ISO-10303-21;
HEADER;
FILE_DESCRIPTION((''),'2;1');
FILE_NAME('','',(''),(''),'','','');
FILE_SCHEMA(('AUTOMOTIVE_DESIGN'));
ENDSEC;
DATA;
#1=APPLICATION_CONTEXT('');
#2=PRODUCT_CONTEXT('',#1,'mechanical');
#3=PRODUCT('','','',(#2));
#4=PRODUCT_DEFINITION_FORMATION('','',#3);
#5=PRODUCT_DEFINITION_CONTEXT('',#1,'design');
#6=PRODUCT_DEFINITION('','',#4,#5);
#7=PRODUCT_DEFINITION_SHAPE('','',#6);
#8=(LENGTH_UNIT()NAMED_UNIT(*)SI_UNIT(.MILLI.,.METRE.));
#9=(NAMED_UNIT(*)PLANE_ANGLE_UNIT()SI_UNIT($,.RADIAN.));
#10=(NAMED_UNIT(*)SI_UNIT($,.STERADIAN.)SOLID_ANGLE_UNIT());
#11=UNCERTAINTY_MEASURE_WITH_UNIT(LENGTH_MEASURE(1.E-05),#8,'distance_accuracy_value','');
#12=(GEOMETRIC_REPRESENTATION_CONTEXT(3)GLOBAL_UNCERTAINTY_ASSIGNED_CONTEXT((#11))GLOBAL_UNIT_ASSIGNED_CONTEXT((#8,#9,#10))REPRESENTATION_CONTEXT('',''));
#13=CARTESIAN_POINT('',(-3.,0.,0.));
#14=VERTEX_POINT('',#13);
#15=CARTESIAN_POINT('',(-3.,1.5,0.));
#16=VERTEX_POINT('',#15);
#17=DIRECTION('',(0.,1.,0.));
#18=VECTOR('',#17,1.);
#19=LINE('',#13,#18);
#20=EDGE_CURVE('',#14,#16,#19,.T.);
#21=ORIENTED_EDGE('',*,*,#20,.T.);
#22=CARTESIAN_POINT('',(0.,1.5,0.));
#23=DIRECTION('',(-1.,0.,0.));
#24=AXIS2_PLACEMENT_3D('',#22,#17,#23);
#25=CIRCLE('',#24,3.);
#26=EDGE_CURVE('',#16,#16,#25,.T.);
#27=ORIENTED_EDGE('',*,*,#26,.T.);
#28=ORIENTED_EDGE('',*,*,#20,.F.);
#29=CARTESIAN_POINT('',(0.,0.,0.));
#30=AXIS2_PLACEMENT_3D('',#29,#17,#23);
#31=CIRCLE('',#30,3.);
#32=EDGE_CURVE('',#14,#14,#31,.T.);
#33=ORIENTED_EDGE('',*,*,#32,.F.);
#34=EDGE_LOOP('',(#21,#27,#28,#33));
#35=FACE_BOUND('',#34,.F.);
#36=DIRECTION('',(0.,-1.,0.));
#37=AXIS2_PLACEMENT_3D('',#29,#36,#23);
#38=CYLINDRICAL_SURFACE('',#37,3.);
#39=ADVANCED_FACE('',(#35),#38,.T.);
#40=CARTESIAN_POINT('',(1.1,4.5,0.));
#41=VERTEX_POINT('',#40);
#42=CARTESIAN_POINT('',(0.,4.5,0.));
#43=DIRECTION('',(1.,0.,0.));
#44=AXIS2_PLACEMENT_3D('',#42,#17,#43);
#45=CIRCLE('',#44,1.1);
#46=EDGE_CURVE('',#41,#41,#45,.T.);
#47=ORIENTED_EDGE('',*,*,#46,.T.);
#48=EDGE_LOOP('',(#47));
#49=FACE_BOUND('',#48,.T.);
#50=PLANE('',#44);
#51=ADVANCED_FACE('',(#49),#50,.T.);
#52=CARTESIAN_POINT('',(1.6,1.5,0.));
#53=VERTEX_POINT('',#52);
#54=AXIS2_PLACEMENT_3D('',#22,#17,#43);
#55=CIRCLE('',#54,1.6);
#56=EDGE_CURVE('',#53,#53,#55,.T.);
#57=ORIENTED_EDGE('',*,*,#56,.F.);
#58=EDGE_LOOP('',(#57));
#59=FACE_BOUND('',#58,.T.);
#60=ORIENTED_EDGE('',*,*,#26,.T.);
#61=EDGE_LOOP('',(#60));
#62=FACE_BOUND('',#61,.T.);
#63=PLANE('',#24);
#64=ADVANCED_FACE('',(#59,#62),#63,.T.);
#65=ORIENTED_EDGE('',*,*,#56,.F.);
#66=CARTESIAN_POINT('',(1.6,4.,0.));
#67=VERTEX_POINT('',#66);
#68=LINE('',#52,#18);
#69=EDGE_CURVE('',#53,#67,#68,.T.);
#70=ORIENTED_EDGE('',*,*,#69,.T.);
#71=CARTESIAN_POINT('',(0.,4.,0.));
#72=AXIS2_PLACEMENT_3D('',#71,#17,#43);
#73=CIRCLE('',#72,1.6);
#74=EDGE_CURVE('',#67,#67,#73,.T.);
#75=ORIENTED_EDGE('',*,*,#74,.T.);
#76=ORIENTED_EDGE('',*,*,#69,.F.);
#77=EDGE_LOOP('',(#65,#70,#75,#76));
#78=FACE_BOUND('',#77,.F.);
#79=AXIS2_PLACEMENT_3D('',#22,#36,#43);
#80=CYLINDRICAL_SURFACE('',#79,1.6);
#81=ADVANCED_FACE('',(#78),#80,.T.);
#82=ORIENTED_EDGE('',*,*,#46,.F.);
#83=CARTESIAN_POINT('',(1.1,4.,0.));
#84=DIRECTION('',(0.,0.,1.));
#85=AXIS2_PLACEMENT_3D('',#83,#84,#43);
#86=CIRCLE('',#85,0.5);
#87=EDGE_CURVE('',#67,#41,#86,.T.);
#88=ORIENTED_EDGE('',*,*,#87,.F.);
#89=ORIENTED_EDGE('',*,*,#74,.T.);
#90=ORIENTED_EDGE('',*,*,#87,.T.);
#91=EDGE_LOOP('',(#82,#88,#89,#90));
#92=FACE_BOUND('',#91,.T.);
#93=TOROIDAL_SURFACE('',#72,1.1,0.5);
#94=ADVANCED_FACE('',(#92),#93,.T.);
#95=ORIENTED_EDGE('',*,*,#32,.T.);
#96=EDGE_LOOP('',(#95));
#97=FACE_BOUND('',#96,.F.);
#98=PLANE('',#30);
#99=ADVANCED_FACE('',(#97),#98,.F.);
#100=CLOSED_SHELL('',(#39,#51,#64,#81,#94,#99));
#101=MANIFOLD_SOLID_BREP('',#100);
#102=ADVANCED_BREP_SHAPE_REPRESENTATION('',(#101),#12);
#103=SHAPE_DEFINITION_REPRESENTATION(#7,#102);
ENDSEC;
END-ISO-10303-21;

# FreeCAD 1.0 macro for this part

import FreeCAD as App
import Part
import Sketcher

V = App.Vector


def edges_at(feature, points):
    """Names of the edges that pass closest to the given points."""
    edges = feature.Shape.Edges
    near = lambda p: min(range(len(edges)), key=lambda i: edges[i].distToShape(Part.Vertex(*p))[0])
    return sorted({f"Edge{near(p) + 1}" for p in points})

doc = App.newDocument("Part")
params = doc.addObject("Spreadsheet::Sheet", "Params")
for row, (alias, value) in enumerate([
    ("sketch1_diameter", "6 mm"),
    ("pad1_length", "1.5 mm"),
    ("sketch2_diameter", "3.2 mm"),
    ("pad2_length", "3 mm"),
    ("fillet_radius", "0.5 mm"),
], start=1):
    params.set(f"A{row}", alias)
    params.set(f"B{row}", "=" + value)
    params.setAlias(f"B{row}", alias)

body = doc.addObject("PartDesign::Body", "Body")

sketch1 = body.newObject("Sketcher::SketchObject", "Sketch")
sketch1.AttachmentSupport = (doc.getObject("XZ_Plane"), [""])
sketch1.MapMode = "FlatFace"
sketch1.addGeometry(Part.Circle(V(0, 0, 0), V(0, 0, 1), 3), False)
sketch1.addConstraint([
    Sketcher.Constraint("Coincident", 0, 3, -1, 1),
    Sketcher.Constraint("Diameter", 0, 6.0),
])
sketch1.setExpression("Constraints[1]", "Params.sketch1_diameter")
pad1 = body.newObject("PartDesign::Pad", "Pad")
pad1.Profile = sketch1
pad1.setExpression("Length", "Params.pad1_length")
pad1.Reversed = True

sketch2 = body.newObject("Sketcher::SketchObject", "Sketch001")
sketch2.AttachmentSupport = (doc.getObject("XZ_Plane"), [""])
sketch2.MapMode = "FlatFace"
sketch2.AttachmentOffset = App.Placement(V(0, 0, -1.5), App.Rotation())
sketch2.addGeometry(Part.Circle(V(0, 0, 0), V(0, 0, 1), 1.6), False)
sketch2.addConstraint([
    Sketcher.Constraint("Coincident", 0, 3, -1, 1),
    Sketcher.Constraint("Diameter", 0, 3.2),
])
sketch2.setExpression("Constraints[1]", "Params.sketch2_diameter")
pad2 = body.newObject("PartDesign::Pad", "Pad001")
pad2.Profile = sketch2
pad2.setExpression("Length", "Params.pad2_length")
pad2.Reversed = True
doc.recompute()

fillet = body.newObject("PartDesign::Fillet", "Fillet")
fillet.Base = (pad2, edges_at(pad2, [(-1.6, 4.5, 0)]))
fillet.setExpression("Radius", "Params.fillet_radius")

doc.recompute()
